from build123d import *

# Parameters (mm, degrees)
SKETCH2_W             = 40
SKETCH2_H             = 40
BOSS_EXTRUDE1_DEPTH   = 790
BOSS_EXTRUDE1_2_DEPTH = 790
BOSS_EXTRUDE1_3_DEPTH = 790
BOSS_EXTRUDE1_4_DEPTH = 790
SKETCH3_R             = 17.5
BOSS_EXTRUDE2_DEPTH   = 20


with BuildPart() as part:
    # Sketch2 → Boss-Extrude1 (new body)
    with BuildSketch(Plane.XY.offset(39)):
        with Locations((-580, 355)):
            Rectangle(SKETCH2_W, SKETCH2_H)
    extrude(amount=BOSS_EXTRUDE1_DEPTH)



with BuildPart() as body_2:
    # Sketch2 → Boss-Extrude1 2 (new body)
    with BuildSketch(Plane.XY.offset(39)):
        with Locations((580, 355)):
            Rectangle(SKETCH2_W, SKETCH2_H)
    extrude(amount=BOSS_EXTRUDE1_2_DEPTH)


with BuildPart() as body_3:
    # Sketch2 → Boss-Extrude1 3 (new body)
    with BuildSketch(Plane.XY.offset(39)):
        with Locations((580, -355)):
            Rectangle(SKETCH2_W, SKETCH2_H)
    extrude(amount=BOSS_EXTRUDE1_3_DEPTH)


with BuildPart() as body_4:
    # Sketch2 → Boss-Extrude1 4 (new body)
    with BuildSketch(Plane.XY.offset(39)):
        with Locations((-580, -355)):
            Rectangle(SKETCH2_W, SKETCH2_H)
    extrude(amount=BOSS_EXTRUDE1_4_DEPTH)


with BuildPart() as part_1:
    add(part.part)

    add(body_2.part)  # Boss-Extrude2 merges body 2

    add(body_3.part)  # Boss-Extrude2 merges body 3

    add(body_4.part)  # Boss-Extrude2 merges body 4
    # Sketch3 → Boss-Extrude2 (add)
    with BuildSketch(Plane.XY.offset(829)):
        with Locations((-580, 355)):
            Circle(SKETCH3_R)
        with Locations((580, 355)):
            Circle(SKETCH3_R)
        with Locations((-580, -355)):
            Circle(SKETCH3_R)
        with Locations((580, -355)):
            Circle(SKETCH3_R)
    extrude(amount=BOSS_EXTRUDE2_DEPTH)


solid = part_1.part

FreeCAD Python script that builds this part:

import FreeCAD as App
import Part
import Sketcher

doc = App.newDocument("Part")
params = doc.addObject("Spreadsheet::Sheet", "Params")
for row, (alias, value) in enumerate([
    ("sketch1_width", "40 mm"),
    ("pad1_length", "790 mm"),
    ("sketch2_width", "40 mm"),
    ("pad2_length", "790 mm"),
    ("sketch3_width", "40 mm"),
    ("pad3_length", "790 mm"),
    ("sketch4_width", "40 mm"),
    ("pad4_length", "790 mm"),
    ("sketch5_diameter", "35 mm"),
    ("pad5_length", "20 mm"),
], start=1):
    params.set(f"A{row}", alias)
    params.set(f"B{row}", "=" + value)
    params.setAlias(f"B{row}", alias)

body = doc.addObject("PartDesign::Body", "Body")

# Sketch on XY plane
sketch1 = body.newObject("Sketcher::SketchObject", "Sketch")
sketch1.AttachmentSupport = (doc.getObject("XY_Plane"), [""])
sketch1.MapMode = "FlatFace"
sketch1.AttachmentOffset = App.Placement(App.Vector(0, 0, 39), App.Rotation())
sketch1.addGeometry(Part.LineSegment(App.Vector(-600, 375, 0), App.Vector(-600, 335, 0)), False)
sketch1.addGeometry(Part.LineSegment(App.Vector(-600, 335, 0), App.Vector(-560, 335, 0)), False)
sketch1.addGeometry(Part.LineSegment(App.Vector(-560, 335, 0), App.Vector(-560, 375, 0)), False)
sketch1.addGeometry(Part.LineSegment(App.Vector(-560, 375, 0), App.Vector(-600, 375, 0)), False)
sketch1.addConstraint(Sketcher.Constraint("Coincident", 0, 2, 1, 1))
sketch1.addConstraint(Sketcher.Constraint("Coincident", 1, 2, 2, 1))
sketch1.addConstraint(Sketcher.Constraint("Coincident", 2, 2, 3, 1))
sketch1.addConstraint(Sketcher.Constraint("Coincident", 3, 2, 0, 1))
sketch1.addConstraint(Sketcher.Constraint("Vertical", 0))
sketch1.addConstraint(Sketcher.Constraint("Horizontal", 1))
sketch1.addConstraint(Sketcher.Constraint("Vertical", 2))
sketch1.addConstraint(Sketcher.Constraint("Horizontal", 3))
sketch1.addConstraint(Sketcher.Constraint("Equal", 3, 0))
sketch1.addConstraint(Sketcher.Constraint("DistanceX", 1, 1, 1, 2, 40.0))
sketch1.addConstraint(Sketcher.Constraint("DistanceX", 0, 2, -1, 1, 600.0))
sketch1.addConstraint(Sketcher.Constraint("DistanceY", -1, 1, 0, 2, 335.0))
sketch1.setExpression("Constraints[9]", "Params.sketch1_width")
pad1 = body.newObject("PartDesign::Pad", "Pad")
pad1.Profile = sketch1
pad1.setExpression("Length", "Params.pad1_length")
body2 = doc.addObject("PartDesign::Body", "Body001")

# Sketch on XY plane
sketch2 = body2.newObject("Sketcher::SketchObject", "Sketch001")
sketch2.AttachmentSupport = (doc.getObject("XY_Plane001"), [""])
sketch2.MapMode = "FlatFace"
sketch2.AttachmentOffset = App.Placement(App.Vector(0, 0, 39), App.Rotation())
sketch2.addGeometry(Part.LineSegment(App.Vector(560, 375, 0), App.Vector(560, 335, 0)), False)
sketch2.addGeometry(Part.LineSegment(App.Vector(560, 335, 0), App.Vector(600, 335, 0)), False)
sketch2.addGeometry(Part.LineSegment(App.Vector(600, 335, 0), App.Vector(600, 375, 0)), False)
sketch2.addGeometry(Part.LineSegment(App.Vector(600, 375, 0), App.Vector(560, 375, 0)), False)
sketch2.addConstraint(Sketcher.Constraint("Coincident", 0, 2, 1, 1))
sketch2.addConstraint(Sketcher.Constraint("Coincident", 1, 2, 2, 1))
sketch2.addConstraint(Sketcher.Constraint("Coincident", 2, 2, 3, 1))
sketch2.addConstraint(Sketcher.Constraint("Coincident", 3, 2, 0, 1))
sketch2.addConstraint(Sketcher.Constraint("Vertical", 0))
sketch2.addConstraint(Sketcher.Constraint("Horizontal", 1))
sketch2.addConstraint(Sketcher.Constraint("Vertical", 2))
sketch2.addConstraint(Sketcher.Constraint("Horizontal", 3))
sketch2.addConstraint(Sketcher.Constraint("Equal", 3, 0))
sketch2.addConstraint(Sketcher.Constraint("DistanceX", 1, 1, 1, 2, 40.0))
sketch2.addConstraint(Sketcher.Constraint("DistanceX", -1, 1, 0, 2, 560.0))
sketch2.addConstraint(Sketcher.Constraint("DistanceY", -1, 1, 0, 2, 335.0))
sketch2.setExpression("Constraints[9]", "Params.sketch2_width")
pad2 = body2.newObject("PartDesign::Pad", "Pad001")
pad2.Profile = sketch2
pad2.setExpression("Length", "Params.pad2_length")
body3 = doc.addObject("PartDesign::Body", "Body002")

# Sketch on XY plane
sketch3 = body3.newObject("Sketcher::SketchObject", "Sketch002")
sketch3.AttachmentSupport = (doc.getObject("XY_Plane002"), [""])
sketch3.MapMode = "FlatFace"
sketch3.AttachmentOffset = App.Placement(App.Vector(0, 0, 39), App.Rotation())
sketch3.addGeometry(Part.LineSegment(App.Vector(560, -335, 0), App.Vector(560, -375, 0)), False)
sketch3.addGeometry(Part.LineSegment(App.Vector(560, -375, 0), App.Vector(600, -375, 0)), False)
sketch3.addGeometry(Part.LineSegment(App.Vector(600, -375, 0), App.Vector(600, -335, 0)), False)
sketch3.addGeometry(Part.LineSegment(App.Vector(600, -335, 0), App.Vector(560, -335, 0)), False)
sketch3.addConstraint(Sketcher.Constraint("Coincident", 0, 2, 1, 1))
sketch3.addConstraint(Sketcher.Constraint("Coincident", 1, 2, 2, 1))
sketch3.addConstraint(Sketcher.Constraint("Coincident", 2, 2, 3, 1))
sketch3.addConstraint(Sketcher.Constraint("Coincident", 3, 2, 0, 1))
sketch3.addConstraint(Sketcher.Constraint("Vertical", 0))
sketch3.addConstraint(Sketcher.Constraint("Horizontal", 1))
sketch3.addConstraint(Sketcher.Constraint("Vertical", 2))
sketch3.addConstraint(Sketcher.Constraint("Horizontal", 3))
sketch3.addConstraint(Sketcher.Constraint("Equal", 3, 0))
sketch3.addConstraint(Sketcher.Constraint("DistanceX", 1, 1, 1, 2, 40.0))
sketch3.addConstraint(Sketcher.Constraint("DistanceX", -1, 1, 0, 2, 560.0))
sketch3.addConstraint(Sketcher.Constraint("DistanceY", 0, 2, -1, 1, 375.0))
sketch3.setExpression("Constraints[9]", "Params.sketch3_width")
pad3 = body3.newObject("PartDesign::Pad", "Pad002")
pad3.Profile = sketch3
pad3.setExpression("Length", "Params.pad3_length")
body4 = doc.addObject("PartDesign::Body", "Body003")

# Sketch on XY plane
sketch4 = body4.newObject("Sketcher::SketchObject", "Sketch003")
sketch4.AttachmentSupport = (doc.getObject("XY_Plane003"), [""])
sketch4.MapMode = "FlatFace"
sketch4.AttachmentOffset = App.Placement(App.Vector(0, 0, 39), App.Rotation())
sketch4.addGeometry(Part.LineSegment(App.Vector(-600, -335, 0), App.Vector(-600, -375, 0)), False)
sketch4.addGeometry(Part.LineSegment(App.Vector(-600, -375, 0), App.Vector(-560, -375, 0)), False)
sketch4.addGeometry(Part.LineSegment(App.Vector(-560, -375, 0), App.Vector(-560, -335, 0)), False)
sketch4.addGeometry(Part.LineSegment(App.Vector(-560, -335, 0), App.Vector(-600, -335, 0)), False)
sketch4.addConstraint(Sketcher.Constraint("Coincident", 0, 2, 1, 1))
sketch4.addConstraint(Sketcher.Constraint("Coincident", 1, 2, 2, 1))
sketch4.addConstraint(Sketcher.Constraint("Coincident", 2, 2, 3, 1))
sketch4.addConstraint(Sketcher.Constraint("Coincident", 3, 2, 0, 1))
sketch4.addConstraint(Sketcher.Constraint("Vertical", 0))
sketch4.addConstraint(Sketcher.Constraint("Horizontal", 1))
sketch4.addConstraint(Sketcher.Constraint("Vertical", 2))
sketch4.addConstraint(Sketcher.Constraint("Horizontal", 3))
sketch4.addConstraint(Sketcher.Constraint("Equal", 3, 0))
sketch4.addConstraint(Sketcher.Constraint("DistanceX", 1, 1, 1, 2, 40.0))
sketch4.addConstraint(Sketcher.Constraint("DistanceX", 0, 2, -1, 1, 600.0))
sketch4.addConstraint(Sketcher.Constraint("DistanceY", 0, 2, -1, 1, 375.0))
sketch4.setExpression("Constraints[9]", "Params.sketch4_width")
pad4 = body4.newObject("PartDesign::Pad", "Pad003")
pad4.Profile = sketch4
pad4.setExpression("Length", "Params.pad4_length")
body.AllowCompound = True
doc.recompute()

boolean = body.newObject("PartDesign::Boolean", "Boolean")
boolean.Type = "Fuse"
boolean.addObjects([body2])
doc.recompute()

boolean2 = body.newObject("PartDesign::Boolean", "Boolean001")
boolean2.Type = "Fuse"
boolean2.addObjects([body3])
doc.recompute()

boolean3 = body.newObject("PartDesign::Boolean", "Boolean002")
boolean3.Type = "Fuse"
boolean3.addObjects([body4])

# Sketch on XY plane
sketch5 = body.newObject("Sketcher::SketchObject", "Sketch004")
sketch5.AttachmentSupport = (doc.getObject("XY_Plane"), [""])
sketch5.MapMode = "FlatFace"
sketch5.AttachmentOffset = App.Placement(App.Vector(0, 0, 829), App.Rotation())
sketch5.addGeometry(Part.Circle(App.Vector(-580, 355, 0), App.Vector(0, 0, 1), 18), False)
sketch5.addGeometry(Part.Circle(App.Vector(580, 355, 0), App.Vector(0, 0, 1), 18), False)
sketch5.addGeometry(Part.Circle(App.Vector(-580, -355, 0), App.Vector(0, 0, 1), 18), False)
sketch5.addGeometry(Part.Circle(App.Vector(580, -355, 0), App.Vector(0, 0, 1), 18), False)
sketch5.addConstraint(Sketcher.Constraint("Equal", 0, 1))
sketch5.addConstraint(Sketcher.Constraint("Equal", 1, 2))
sketch5.addConstraint(Sketcher.Constraint("Equal", 2, 3))
sketch5.addConstraint(Sketcher.Constraint("Symmetric", 1, 3, 2, 3, -1, 1))
sketch5.addConstraint(Sketcher.Constraint("Symmetric", 0, 3, 3, 3, -1, 1))
sketch5.addConstraint(Sketcher.Constraint("Symmetric", 0, 3, 1, 3, -2))
sketch5.addConstraint(Sketcher.Constraint("Diameter", 0, 35.0))
sketch5.addConstraint(Sketcher.Constraint("DistanceX", 0, 3, -1, 1, 580.0))
sketch5.addConstraint(Sketcher.Constraint("DistanceY", -1, 1, 0, 3, 355.0))
sketch5.setExpression("Constraints[6]", "Params.sketch5_diameter")
pad5 = body.newObject("PartDesign::Pad", "Pad004")
pad5.Profile = sketch5
pad5.setExpression("Length", "Params.pad5_length")

doc.recompute()
